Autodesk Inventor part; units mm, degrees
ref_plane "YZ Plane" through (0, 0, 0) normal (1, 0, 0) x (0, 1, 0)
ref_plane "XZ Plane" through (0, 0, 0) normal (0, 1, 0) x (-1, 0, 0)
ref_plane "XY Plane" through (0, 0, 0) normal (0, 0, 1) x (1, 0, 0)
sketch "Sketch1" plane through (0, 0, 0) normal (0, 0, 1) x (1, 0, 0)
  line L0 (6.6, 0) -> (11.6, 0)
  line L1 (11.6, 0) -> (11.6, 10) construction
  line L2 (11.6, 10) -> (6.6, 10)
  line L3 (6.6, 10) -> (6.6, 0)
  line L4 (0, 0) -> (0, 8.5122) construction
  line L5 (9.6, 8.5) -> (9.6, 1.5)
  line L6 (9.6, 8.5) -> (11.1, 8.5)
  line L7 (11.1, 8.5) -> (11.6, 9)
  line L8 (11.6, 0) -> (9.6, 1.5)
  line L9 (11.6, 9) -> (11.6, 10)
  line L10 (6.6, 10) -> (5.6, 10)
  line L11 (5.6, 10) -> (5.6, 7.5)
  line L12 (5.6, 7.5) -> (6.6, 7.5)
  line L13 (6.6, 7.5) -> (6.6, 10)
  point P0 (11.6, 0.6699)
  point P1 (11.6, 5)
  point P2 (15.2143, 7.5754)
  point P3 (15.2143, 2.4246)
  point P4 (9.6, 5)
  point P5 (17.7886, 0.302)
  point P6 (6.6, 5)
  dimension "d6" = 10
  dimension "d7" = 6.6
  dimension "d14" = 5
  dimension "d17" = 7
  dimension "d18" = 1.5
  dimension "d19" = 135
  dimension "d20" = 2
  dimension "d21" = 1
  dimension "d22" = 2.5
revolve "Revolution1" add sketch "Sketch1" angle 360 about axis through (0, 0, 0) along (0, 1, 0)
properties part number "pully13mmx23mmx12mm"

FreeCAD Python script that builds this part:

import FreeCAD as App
import Part
import Sketcher
from FreeCAD import Vector
Q = App.Units.Quantity

doc = App.newDocument("Part")
params = doc.addObject("Spreadsheet::Sheet", "Params")
for row, (alias, value) in enumerate([
    ("sketch1_width", "5 mm"),
    ("sketch1_width2", "1 mm"),
    ("sketch1_height", "7 mm"),
    ("sketch1_width3", "1.5 mm"),
    ("sketch1_height2", "2.5 mm"),
    ("revolution_angle", "360 deg"),
], start=1):
    params.set(f"A{row}", alias)
    params.set(f"B{row}", "=" + value)
    params.setAlias(f"B{row}", alias)

body = doc.addObject("PartDesign::Body", "Body")

# Sketch on XY plane
sketch1 = doc.addObject("Sketcher::SketchObject", "Sketch")
body.addObject(sketch1)
sketch1.AttachmentSupport = (doc.XY_Plane, [""])
sketch1.MapMode = "FlatFace"
sketch1.addGeometry([
    Part.LineSegment(Vector(6.6, 7.5, 0), Vector(6.6, 0, 0)),  # 0
    Part.LineSegment(Vector(6.6, 0, 0), Vector(11.6, 0, 0)),  # 1
    Part.LineSegment(Vector(11.6, 0, 0), Vector(9.6, 1.5, 0)),  # 2
    Part.LineSegment(Vector(9.6, 1.5, 0), Vector(9.6, 8.5, 0)),  # 3
    Part.LineSegment(Vector(9.6, 8.5, 0), Vector(11.1, 8.5, 0)),  # 4
    Part.LineSegment(Vector(11.1, 8.5, 0), Vector(11.6, 9, 0)),  # 5
    Part.LineSegment(Vector(11.6, 9, 0), Vector(11.6, 10, 0)),  # 6
    Part.LineSegment(Vector(11.6, 10, 0), Vector(5.6, 10, 0)),  # 7
    Part.LineSegment(Vector(5.6, 10, 0), Vector(5.6, 7.5, 0)),  # 8
    Part.LineSegment(Vector(5.6, 7.5, 0), Vector(6.6, 7.5, 0)),  # 9
], False)
sketch1.addConstraint([
    Sketcher.Constraint("Coincident", 0, 2, 1, 1),
    Sketcher.Constraint("Coincident", 1, 2, 2, 1),
    Sketcher.Constraint("Coincident", 2, 2, 3, 1),
    Sketcher.Constraint("Coincident", 3, 2, 4, 1),
    Sketcher.Constraint("Coincident", 4, 2, 5, 1),
    Sketcher.Constraint("Coincident", 5, 2, 6, 1),
    Sketcher.Constraint("Coincident", 6, 2, 7, 1),
    Sketcher.Constraint("Coincident", 7, 2, 8, 1),
    Sketcher.Constraint("Coincident", 8, 2, 9, 1),
    Sketcher.Constraint("Coincident", 9, 2, 0, 1),
    Sketcher.Constraint("Vertical", 0),
    Sketcher.Constraint("Horizontal", 1),
    Sketcher.Constraint("Vertical", 3),
    Sketcher.Constraint("Horizontal", 4),
    Sketcher.Constraint("Vertical", 6),
    Sketcher.Constraint("Horizontal", 7),
    Sketcher.Constraint("Vertical", 8),
    Sketcher.Constraint("Horizontal", 9),
    Sketcher.Constraint("PointOnObject", 0, 2, -1),
    Sketcher.Constraint("Vertical", 1, 2, 5, 2),
    Sketcher.Constraint("Equal", 9, 6),
    Sketcher.Constraint("DistanceX", 1, 1, 1, 2, Q("5 mm")),
    Sketcher.Constraint("DistanceX", 9, 1, 9, 2, Q("1 mm")),
    Sketcher.Constraint("DistanceY", 3, 1, 3, 2, Q("7 mm")),
    Sketcher.Constraint("DistanceX", 4, 1, 4, 2, Q("1.5 mm")),
    Sketcher.Constraint("DistanceY", 8, 2, 8, 1, Q("2.5 mm")),
    Sketcher.Constraint("DistanceY", -1, 1, 6, 2, Q("10 mm")),
    Sketcher.Constraint("DistanceX", 2, 2, 1, 2, Q("2 mm")),
    Sketcher.Constraint("DistanceY", 8, 2, 3, 2, Q("1 mm")),
    Sketcher.Constraint("DistanceX", -1, 1, 0, 2, Q("6.6 mm")),
])
sketch1.setExpression("Constraints[21]", "Params.sketch1_width")
sketch1.setExpression("Constraints[22]", "Params.sketch1_width2")
sketch1.setExpression("Constraints[23]", "Params.sketch1_height")
sketch1.setExpression("Constraints[24]", "Params.sketch1_width3")
sketch1.setExpression("Constraints[25]", "Params.sketch1_height2")
revolution = doc.addObject("PartDesign::Revolution", "Revolution")
body.addObject(revolution)
revolution.Profile = sketch1
revolution.ReferenceAxis = (sketch1, ["V_Axis"])
revolution.setExpression("Angle", "Params.revolution_angle")

doc.recompute()
